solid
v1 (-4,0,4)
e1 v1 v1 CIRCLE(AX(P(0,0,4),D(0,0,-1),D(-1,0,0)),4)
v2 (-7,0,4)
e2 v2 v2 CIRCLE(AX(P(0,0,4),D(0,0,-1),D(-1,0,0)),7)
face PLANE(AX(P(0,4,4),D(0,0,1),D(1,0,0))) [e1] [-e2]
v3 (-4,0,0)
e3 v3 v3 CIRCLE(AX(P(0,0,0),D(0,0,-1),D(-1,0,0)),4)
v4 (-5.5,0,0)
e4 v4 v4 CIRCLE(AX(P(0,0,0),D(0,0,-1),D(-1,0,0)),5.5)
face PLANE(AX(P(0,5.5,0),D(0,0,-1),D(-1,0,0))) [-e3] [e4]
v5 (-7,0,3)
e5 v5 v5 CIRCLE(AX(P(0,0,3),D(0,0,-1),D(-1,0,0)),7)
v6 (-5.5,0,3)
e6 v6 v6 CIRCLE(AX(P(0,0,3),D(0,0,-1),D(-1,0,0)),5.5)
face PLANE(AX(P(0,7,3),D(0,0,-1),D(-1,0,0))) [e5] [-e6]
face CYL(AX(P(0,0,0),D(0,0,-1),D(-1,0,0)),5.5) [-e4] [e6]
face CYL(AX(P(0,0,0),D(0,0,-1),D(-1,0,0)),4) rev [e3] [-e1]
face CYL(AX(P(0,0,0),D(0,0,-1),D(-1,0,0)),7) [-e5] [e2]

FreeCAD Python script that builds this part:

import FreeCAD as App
import Part
import Sketcher
from FreeCAD import Vector
Q = App.Units.Quantity


def add_polygon(sketch, points):
    """Adds a closed chain of lines whose ends are joined by coincident constraints."""
    first, n = sketch.GeometryCount, len(points)
    for a, b in zip(points, points[1:] + points[:1]):
        sketch.addGeometry(Part.LineSegment(App.Vector(*a, 0), App.Vector(*b, 0)), False)
    for i in range(n):
        sketch.addConstraint(Sketcher.Constraint("Coincident", first + i, 2, first + (i + 1) % n, 1))

doc = App.newDocument("Part")
body = doc.addObject("PartDesign::Body", "Body")

sketch1 = doc.addObject("Sketcher::SketchObject", "Sketch")
body.addObject(sketch1)
sketch1.AttachmentSupport = (doc.YZ_Plane, [""])
sketch1.MapMode = "FlatFace"
add_polygon(sketch1, [(4, 4), (4, 0), (5.5, 0), (5.5, 3), (7, 3), (7, 4)])
sketch1.addConstraint([
    Sketcher.Constraint("Vertical", 0),
    Sketcher.Constraint("Horizontal", 1),
    Sketcher.Constraint("Vertical", 2),
    Sketcher.Constraint("Horizontal", 3),
    Sketcher.Constraint("Vertical", 4),
    Sketcher.Constraint("Horizontal", 5),
    Sketcher.Constraint("PointOnObject", 0, 2, -1),
    Sketcher.Constraint("Equal", 1, 3),
    Sketcher.Constraint("Equal", 5, 2),
    Sketcher.Constraint("DistanceX", 5, 2, 5, 1, Q("3 mm")),
    Sketcher.Constraint("DistanceY", 0, 2, 0, 1, Q("4 mm")),
    Sketcher.Constraint("DistanceX", -1, 1, 0, 2, Q("4 mm")),
])
revolution = doc.addObject("PartDesign::Revolution", "Revolution")
body.addObject(revolution)
revolution.Profile = sketch1
revolution.ReferenceAxis = (sketch1, ["V_Axis"])
revolution.Angle = 360

doc.recompute()
